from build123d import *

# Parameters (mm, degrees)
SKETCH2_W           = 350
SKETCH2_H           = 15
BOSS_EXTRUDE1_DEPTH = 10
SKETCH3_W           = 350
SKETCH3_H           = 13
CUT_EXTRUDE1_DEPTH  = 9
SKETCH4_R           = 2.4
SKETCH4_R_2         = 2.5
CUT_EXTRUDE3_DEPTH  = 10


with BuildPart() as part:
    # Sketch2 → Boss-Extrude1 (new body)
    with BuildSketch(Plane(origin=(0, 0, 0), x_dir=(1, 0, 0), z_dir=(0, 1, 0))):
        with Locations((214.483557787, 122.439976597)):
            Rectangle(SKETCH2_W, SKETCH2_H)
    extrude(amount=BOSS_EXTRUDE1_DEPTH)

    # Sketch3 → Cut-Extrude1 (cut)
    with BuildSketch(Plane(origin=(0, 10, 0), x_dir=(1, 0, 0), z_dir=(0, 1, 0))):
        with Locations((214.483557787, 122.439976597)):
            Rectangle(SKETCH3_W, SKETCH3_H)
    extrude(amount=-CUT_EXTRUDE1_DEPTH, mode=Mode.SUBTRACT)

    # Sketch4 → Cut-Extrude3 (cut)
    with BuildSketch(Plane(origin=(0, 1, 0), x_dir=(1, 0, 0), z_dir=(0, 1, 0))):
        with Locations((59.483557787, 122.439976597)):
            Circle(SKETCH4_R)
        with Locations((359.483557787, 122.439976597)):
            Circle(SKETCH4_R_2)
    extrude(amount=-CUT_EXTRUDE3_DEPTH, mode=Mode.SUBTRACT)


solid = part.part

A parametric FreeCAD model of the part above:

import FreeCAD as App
import Part
import Sketcher
Q = App.Units.Quantity


def add_polygon(sketch, points):
    """Adds a closed chain of lines whose ends are joined by coincident constraints."""
    first, n = sketch.GeometryCount, len(points)
    for a, b in zip(points, points[1:] + points[:1]):
        sketch.addGeometry(Part.LineSegment(App.Vector(*a, 0), App.Vector(*b, 0)), False)
    for i in range(n):
        sketch.addConstraint(Sketcher.Constraint("Coincident", first + i, 2, first + (i + 1) % n, 1))

doc = App.newDocument("Part")
body = doc.addObject("PartDesign::Body", "Body")

# Sketch on XZ plane
sketch1 = body.newObject("Sketcher::SketchObject", "Sketch")
sketch1.AttachmentSupport = (doc.getObject("XZ_Plane"), [""])
sketch1.MapMode = "FlatFace"
add_polygon(sketch1, [(39, -130), (39, -115), (389, -115), (389, -130)])  # lines 0-3
sketch1.addConstraint([
    Sketcher.Constraint("Vertical", 0),
    Sketcher.Constraint("Horizontal", 1),
    Sketcher.Constraint("Vertical", 2),
    Sketcher.Constraint("Horizontal", 3),
    Sketcher.Constraint("DistanceX", 1, 1, 1, 2, Q("350 mm")),
    Sketcher.Constraint("DistanceY", 0, 1, 0, 2, Q("15 mm")),
    Sketcher.Constraint("DistanceX", -1, 1, 0, 2, Q("39.483558 mm")),
    Sketcher.Constraint("DistanceY", 0, 2, -1, 1, Q("114.939977 mm")),
])
pad1 = body.newObject("PartDesign::Pad", "Pad")
pad1.Profile = sketch1
pad1.Length = 10
pad1.Reversed = True

# Sketch on XZ plane
sketch2 = body.newObject("Sketcher::SketchObject", "Sketch001")
sketch2.AttachmentSupport = (doc.getObject("XZ_Plane"), [""])
sketch2.MapMode = "FlatFace"
sketch2.AttachmentOffset = App.Placement(App.Vector(0, 0, -10), App.Rotation())
add_polygon(sketch2, [(39, -129), (39, -116), (389, -116), (389, -129)])  # lines 0-3
sketch2.addConstraint([
    Sketcher.Constraint("Vertical", 0),
    Sketcher.Constraint("Horizontal", 1),
    Sketcher.Constraint("Vertical", 2),
    Sketcher.Constraint("Horizontal", 3),
    Sketcher.Constraint("DistanceX", 1, 1, 1, 2, Q("350 mm")),
    Sketcher.Constraint("DistanceY", 0, 1, 0, 2, Q("13 mm")),
    Sketcher.Constraint("DistanceX", -1, 1, 0, 2, Q("39.483558 mm")),
    Sketcher.Constraint("DistanceY", 0, 2, -1, 1, Q("115.939977 mm")),
])
pocket1 = body.newObject("PartDesign::Pocket", "Pocket")
pocket1.Profile = sketch2
pocket1.Length = 9
pocket1.Reversed = True

# Sketch on XZ plane
sketch3 = body.newObject("Sketcher::SketchObject", "Sketch002")
sketch3.AttachmentSupport = (doc.getObject("XZ_Plane"), [""])
sketch3.MapMode = "FlatFace"
sketch3.AttachmentOffset = App.Placement(App.Vector(0, 0, -1), App.Rotation())
sketch3.addGeometry([
    Part.Circle(App.Vector(59.5, -122.4, 0), App.Vector(0, 0, 1), 2.4),
    Part.Circle(App.Vector(359.5, -122.4, 0), App.Vector(0, 0, 1), 2.5),
], False)
sketch3.addConstraint([
    Sketcher.Constraint("Horizontal", 0, 3, 1, 3),
    Sketcher.Constraint("Diameter", 1, Q("5 mm")),
    Sketcher.Constraint("Diameter", 0, Q("4.8 mm")),
    Sketcher.Constraint("DistanceX", 0, 3, 1, 3, Q("300 mm")),
    Sketcher.Constraint("DistanceX", -1, 1, 0, 3, Q("59.483558 mm")),
    Sketcher.Constraint("DistanceY", 0, 3, -1, 1, Q("122.439977 mm")),
])
pocket2 = body.newObject("PartDesign::Pocket", "Pocket001")
pocket2.Profile = sketch3
pocket2.Length = 10
pocket2.Reversed = True

doc.recompute()
